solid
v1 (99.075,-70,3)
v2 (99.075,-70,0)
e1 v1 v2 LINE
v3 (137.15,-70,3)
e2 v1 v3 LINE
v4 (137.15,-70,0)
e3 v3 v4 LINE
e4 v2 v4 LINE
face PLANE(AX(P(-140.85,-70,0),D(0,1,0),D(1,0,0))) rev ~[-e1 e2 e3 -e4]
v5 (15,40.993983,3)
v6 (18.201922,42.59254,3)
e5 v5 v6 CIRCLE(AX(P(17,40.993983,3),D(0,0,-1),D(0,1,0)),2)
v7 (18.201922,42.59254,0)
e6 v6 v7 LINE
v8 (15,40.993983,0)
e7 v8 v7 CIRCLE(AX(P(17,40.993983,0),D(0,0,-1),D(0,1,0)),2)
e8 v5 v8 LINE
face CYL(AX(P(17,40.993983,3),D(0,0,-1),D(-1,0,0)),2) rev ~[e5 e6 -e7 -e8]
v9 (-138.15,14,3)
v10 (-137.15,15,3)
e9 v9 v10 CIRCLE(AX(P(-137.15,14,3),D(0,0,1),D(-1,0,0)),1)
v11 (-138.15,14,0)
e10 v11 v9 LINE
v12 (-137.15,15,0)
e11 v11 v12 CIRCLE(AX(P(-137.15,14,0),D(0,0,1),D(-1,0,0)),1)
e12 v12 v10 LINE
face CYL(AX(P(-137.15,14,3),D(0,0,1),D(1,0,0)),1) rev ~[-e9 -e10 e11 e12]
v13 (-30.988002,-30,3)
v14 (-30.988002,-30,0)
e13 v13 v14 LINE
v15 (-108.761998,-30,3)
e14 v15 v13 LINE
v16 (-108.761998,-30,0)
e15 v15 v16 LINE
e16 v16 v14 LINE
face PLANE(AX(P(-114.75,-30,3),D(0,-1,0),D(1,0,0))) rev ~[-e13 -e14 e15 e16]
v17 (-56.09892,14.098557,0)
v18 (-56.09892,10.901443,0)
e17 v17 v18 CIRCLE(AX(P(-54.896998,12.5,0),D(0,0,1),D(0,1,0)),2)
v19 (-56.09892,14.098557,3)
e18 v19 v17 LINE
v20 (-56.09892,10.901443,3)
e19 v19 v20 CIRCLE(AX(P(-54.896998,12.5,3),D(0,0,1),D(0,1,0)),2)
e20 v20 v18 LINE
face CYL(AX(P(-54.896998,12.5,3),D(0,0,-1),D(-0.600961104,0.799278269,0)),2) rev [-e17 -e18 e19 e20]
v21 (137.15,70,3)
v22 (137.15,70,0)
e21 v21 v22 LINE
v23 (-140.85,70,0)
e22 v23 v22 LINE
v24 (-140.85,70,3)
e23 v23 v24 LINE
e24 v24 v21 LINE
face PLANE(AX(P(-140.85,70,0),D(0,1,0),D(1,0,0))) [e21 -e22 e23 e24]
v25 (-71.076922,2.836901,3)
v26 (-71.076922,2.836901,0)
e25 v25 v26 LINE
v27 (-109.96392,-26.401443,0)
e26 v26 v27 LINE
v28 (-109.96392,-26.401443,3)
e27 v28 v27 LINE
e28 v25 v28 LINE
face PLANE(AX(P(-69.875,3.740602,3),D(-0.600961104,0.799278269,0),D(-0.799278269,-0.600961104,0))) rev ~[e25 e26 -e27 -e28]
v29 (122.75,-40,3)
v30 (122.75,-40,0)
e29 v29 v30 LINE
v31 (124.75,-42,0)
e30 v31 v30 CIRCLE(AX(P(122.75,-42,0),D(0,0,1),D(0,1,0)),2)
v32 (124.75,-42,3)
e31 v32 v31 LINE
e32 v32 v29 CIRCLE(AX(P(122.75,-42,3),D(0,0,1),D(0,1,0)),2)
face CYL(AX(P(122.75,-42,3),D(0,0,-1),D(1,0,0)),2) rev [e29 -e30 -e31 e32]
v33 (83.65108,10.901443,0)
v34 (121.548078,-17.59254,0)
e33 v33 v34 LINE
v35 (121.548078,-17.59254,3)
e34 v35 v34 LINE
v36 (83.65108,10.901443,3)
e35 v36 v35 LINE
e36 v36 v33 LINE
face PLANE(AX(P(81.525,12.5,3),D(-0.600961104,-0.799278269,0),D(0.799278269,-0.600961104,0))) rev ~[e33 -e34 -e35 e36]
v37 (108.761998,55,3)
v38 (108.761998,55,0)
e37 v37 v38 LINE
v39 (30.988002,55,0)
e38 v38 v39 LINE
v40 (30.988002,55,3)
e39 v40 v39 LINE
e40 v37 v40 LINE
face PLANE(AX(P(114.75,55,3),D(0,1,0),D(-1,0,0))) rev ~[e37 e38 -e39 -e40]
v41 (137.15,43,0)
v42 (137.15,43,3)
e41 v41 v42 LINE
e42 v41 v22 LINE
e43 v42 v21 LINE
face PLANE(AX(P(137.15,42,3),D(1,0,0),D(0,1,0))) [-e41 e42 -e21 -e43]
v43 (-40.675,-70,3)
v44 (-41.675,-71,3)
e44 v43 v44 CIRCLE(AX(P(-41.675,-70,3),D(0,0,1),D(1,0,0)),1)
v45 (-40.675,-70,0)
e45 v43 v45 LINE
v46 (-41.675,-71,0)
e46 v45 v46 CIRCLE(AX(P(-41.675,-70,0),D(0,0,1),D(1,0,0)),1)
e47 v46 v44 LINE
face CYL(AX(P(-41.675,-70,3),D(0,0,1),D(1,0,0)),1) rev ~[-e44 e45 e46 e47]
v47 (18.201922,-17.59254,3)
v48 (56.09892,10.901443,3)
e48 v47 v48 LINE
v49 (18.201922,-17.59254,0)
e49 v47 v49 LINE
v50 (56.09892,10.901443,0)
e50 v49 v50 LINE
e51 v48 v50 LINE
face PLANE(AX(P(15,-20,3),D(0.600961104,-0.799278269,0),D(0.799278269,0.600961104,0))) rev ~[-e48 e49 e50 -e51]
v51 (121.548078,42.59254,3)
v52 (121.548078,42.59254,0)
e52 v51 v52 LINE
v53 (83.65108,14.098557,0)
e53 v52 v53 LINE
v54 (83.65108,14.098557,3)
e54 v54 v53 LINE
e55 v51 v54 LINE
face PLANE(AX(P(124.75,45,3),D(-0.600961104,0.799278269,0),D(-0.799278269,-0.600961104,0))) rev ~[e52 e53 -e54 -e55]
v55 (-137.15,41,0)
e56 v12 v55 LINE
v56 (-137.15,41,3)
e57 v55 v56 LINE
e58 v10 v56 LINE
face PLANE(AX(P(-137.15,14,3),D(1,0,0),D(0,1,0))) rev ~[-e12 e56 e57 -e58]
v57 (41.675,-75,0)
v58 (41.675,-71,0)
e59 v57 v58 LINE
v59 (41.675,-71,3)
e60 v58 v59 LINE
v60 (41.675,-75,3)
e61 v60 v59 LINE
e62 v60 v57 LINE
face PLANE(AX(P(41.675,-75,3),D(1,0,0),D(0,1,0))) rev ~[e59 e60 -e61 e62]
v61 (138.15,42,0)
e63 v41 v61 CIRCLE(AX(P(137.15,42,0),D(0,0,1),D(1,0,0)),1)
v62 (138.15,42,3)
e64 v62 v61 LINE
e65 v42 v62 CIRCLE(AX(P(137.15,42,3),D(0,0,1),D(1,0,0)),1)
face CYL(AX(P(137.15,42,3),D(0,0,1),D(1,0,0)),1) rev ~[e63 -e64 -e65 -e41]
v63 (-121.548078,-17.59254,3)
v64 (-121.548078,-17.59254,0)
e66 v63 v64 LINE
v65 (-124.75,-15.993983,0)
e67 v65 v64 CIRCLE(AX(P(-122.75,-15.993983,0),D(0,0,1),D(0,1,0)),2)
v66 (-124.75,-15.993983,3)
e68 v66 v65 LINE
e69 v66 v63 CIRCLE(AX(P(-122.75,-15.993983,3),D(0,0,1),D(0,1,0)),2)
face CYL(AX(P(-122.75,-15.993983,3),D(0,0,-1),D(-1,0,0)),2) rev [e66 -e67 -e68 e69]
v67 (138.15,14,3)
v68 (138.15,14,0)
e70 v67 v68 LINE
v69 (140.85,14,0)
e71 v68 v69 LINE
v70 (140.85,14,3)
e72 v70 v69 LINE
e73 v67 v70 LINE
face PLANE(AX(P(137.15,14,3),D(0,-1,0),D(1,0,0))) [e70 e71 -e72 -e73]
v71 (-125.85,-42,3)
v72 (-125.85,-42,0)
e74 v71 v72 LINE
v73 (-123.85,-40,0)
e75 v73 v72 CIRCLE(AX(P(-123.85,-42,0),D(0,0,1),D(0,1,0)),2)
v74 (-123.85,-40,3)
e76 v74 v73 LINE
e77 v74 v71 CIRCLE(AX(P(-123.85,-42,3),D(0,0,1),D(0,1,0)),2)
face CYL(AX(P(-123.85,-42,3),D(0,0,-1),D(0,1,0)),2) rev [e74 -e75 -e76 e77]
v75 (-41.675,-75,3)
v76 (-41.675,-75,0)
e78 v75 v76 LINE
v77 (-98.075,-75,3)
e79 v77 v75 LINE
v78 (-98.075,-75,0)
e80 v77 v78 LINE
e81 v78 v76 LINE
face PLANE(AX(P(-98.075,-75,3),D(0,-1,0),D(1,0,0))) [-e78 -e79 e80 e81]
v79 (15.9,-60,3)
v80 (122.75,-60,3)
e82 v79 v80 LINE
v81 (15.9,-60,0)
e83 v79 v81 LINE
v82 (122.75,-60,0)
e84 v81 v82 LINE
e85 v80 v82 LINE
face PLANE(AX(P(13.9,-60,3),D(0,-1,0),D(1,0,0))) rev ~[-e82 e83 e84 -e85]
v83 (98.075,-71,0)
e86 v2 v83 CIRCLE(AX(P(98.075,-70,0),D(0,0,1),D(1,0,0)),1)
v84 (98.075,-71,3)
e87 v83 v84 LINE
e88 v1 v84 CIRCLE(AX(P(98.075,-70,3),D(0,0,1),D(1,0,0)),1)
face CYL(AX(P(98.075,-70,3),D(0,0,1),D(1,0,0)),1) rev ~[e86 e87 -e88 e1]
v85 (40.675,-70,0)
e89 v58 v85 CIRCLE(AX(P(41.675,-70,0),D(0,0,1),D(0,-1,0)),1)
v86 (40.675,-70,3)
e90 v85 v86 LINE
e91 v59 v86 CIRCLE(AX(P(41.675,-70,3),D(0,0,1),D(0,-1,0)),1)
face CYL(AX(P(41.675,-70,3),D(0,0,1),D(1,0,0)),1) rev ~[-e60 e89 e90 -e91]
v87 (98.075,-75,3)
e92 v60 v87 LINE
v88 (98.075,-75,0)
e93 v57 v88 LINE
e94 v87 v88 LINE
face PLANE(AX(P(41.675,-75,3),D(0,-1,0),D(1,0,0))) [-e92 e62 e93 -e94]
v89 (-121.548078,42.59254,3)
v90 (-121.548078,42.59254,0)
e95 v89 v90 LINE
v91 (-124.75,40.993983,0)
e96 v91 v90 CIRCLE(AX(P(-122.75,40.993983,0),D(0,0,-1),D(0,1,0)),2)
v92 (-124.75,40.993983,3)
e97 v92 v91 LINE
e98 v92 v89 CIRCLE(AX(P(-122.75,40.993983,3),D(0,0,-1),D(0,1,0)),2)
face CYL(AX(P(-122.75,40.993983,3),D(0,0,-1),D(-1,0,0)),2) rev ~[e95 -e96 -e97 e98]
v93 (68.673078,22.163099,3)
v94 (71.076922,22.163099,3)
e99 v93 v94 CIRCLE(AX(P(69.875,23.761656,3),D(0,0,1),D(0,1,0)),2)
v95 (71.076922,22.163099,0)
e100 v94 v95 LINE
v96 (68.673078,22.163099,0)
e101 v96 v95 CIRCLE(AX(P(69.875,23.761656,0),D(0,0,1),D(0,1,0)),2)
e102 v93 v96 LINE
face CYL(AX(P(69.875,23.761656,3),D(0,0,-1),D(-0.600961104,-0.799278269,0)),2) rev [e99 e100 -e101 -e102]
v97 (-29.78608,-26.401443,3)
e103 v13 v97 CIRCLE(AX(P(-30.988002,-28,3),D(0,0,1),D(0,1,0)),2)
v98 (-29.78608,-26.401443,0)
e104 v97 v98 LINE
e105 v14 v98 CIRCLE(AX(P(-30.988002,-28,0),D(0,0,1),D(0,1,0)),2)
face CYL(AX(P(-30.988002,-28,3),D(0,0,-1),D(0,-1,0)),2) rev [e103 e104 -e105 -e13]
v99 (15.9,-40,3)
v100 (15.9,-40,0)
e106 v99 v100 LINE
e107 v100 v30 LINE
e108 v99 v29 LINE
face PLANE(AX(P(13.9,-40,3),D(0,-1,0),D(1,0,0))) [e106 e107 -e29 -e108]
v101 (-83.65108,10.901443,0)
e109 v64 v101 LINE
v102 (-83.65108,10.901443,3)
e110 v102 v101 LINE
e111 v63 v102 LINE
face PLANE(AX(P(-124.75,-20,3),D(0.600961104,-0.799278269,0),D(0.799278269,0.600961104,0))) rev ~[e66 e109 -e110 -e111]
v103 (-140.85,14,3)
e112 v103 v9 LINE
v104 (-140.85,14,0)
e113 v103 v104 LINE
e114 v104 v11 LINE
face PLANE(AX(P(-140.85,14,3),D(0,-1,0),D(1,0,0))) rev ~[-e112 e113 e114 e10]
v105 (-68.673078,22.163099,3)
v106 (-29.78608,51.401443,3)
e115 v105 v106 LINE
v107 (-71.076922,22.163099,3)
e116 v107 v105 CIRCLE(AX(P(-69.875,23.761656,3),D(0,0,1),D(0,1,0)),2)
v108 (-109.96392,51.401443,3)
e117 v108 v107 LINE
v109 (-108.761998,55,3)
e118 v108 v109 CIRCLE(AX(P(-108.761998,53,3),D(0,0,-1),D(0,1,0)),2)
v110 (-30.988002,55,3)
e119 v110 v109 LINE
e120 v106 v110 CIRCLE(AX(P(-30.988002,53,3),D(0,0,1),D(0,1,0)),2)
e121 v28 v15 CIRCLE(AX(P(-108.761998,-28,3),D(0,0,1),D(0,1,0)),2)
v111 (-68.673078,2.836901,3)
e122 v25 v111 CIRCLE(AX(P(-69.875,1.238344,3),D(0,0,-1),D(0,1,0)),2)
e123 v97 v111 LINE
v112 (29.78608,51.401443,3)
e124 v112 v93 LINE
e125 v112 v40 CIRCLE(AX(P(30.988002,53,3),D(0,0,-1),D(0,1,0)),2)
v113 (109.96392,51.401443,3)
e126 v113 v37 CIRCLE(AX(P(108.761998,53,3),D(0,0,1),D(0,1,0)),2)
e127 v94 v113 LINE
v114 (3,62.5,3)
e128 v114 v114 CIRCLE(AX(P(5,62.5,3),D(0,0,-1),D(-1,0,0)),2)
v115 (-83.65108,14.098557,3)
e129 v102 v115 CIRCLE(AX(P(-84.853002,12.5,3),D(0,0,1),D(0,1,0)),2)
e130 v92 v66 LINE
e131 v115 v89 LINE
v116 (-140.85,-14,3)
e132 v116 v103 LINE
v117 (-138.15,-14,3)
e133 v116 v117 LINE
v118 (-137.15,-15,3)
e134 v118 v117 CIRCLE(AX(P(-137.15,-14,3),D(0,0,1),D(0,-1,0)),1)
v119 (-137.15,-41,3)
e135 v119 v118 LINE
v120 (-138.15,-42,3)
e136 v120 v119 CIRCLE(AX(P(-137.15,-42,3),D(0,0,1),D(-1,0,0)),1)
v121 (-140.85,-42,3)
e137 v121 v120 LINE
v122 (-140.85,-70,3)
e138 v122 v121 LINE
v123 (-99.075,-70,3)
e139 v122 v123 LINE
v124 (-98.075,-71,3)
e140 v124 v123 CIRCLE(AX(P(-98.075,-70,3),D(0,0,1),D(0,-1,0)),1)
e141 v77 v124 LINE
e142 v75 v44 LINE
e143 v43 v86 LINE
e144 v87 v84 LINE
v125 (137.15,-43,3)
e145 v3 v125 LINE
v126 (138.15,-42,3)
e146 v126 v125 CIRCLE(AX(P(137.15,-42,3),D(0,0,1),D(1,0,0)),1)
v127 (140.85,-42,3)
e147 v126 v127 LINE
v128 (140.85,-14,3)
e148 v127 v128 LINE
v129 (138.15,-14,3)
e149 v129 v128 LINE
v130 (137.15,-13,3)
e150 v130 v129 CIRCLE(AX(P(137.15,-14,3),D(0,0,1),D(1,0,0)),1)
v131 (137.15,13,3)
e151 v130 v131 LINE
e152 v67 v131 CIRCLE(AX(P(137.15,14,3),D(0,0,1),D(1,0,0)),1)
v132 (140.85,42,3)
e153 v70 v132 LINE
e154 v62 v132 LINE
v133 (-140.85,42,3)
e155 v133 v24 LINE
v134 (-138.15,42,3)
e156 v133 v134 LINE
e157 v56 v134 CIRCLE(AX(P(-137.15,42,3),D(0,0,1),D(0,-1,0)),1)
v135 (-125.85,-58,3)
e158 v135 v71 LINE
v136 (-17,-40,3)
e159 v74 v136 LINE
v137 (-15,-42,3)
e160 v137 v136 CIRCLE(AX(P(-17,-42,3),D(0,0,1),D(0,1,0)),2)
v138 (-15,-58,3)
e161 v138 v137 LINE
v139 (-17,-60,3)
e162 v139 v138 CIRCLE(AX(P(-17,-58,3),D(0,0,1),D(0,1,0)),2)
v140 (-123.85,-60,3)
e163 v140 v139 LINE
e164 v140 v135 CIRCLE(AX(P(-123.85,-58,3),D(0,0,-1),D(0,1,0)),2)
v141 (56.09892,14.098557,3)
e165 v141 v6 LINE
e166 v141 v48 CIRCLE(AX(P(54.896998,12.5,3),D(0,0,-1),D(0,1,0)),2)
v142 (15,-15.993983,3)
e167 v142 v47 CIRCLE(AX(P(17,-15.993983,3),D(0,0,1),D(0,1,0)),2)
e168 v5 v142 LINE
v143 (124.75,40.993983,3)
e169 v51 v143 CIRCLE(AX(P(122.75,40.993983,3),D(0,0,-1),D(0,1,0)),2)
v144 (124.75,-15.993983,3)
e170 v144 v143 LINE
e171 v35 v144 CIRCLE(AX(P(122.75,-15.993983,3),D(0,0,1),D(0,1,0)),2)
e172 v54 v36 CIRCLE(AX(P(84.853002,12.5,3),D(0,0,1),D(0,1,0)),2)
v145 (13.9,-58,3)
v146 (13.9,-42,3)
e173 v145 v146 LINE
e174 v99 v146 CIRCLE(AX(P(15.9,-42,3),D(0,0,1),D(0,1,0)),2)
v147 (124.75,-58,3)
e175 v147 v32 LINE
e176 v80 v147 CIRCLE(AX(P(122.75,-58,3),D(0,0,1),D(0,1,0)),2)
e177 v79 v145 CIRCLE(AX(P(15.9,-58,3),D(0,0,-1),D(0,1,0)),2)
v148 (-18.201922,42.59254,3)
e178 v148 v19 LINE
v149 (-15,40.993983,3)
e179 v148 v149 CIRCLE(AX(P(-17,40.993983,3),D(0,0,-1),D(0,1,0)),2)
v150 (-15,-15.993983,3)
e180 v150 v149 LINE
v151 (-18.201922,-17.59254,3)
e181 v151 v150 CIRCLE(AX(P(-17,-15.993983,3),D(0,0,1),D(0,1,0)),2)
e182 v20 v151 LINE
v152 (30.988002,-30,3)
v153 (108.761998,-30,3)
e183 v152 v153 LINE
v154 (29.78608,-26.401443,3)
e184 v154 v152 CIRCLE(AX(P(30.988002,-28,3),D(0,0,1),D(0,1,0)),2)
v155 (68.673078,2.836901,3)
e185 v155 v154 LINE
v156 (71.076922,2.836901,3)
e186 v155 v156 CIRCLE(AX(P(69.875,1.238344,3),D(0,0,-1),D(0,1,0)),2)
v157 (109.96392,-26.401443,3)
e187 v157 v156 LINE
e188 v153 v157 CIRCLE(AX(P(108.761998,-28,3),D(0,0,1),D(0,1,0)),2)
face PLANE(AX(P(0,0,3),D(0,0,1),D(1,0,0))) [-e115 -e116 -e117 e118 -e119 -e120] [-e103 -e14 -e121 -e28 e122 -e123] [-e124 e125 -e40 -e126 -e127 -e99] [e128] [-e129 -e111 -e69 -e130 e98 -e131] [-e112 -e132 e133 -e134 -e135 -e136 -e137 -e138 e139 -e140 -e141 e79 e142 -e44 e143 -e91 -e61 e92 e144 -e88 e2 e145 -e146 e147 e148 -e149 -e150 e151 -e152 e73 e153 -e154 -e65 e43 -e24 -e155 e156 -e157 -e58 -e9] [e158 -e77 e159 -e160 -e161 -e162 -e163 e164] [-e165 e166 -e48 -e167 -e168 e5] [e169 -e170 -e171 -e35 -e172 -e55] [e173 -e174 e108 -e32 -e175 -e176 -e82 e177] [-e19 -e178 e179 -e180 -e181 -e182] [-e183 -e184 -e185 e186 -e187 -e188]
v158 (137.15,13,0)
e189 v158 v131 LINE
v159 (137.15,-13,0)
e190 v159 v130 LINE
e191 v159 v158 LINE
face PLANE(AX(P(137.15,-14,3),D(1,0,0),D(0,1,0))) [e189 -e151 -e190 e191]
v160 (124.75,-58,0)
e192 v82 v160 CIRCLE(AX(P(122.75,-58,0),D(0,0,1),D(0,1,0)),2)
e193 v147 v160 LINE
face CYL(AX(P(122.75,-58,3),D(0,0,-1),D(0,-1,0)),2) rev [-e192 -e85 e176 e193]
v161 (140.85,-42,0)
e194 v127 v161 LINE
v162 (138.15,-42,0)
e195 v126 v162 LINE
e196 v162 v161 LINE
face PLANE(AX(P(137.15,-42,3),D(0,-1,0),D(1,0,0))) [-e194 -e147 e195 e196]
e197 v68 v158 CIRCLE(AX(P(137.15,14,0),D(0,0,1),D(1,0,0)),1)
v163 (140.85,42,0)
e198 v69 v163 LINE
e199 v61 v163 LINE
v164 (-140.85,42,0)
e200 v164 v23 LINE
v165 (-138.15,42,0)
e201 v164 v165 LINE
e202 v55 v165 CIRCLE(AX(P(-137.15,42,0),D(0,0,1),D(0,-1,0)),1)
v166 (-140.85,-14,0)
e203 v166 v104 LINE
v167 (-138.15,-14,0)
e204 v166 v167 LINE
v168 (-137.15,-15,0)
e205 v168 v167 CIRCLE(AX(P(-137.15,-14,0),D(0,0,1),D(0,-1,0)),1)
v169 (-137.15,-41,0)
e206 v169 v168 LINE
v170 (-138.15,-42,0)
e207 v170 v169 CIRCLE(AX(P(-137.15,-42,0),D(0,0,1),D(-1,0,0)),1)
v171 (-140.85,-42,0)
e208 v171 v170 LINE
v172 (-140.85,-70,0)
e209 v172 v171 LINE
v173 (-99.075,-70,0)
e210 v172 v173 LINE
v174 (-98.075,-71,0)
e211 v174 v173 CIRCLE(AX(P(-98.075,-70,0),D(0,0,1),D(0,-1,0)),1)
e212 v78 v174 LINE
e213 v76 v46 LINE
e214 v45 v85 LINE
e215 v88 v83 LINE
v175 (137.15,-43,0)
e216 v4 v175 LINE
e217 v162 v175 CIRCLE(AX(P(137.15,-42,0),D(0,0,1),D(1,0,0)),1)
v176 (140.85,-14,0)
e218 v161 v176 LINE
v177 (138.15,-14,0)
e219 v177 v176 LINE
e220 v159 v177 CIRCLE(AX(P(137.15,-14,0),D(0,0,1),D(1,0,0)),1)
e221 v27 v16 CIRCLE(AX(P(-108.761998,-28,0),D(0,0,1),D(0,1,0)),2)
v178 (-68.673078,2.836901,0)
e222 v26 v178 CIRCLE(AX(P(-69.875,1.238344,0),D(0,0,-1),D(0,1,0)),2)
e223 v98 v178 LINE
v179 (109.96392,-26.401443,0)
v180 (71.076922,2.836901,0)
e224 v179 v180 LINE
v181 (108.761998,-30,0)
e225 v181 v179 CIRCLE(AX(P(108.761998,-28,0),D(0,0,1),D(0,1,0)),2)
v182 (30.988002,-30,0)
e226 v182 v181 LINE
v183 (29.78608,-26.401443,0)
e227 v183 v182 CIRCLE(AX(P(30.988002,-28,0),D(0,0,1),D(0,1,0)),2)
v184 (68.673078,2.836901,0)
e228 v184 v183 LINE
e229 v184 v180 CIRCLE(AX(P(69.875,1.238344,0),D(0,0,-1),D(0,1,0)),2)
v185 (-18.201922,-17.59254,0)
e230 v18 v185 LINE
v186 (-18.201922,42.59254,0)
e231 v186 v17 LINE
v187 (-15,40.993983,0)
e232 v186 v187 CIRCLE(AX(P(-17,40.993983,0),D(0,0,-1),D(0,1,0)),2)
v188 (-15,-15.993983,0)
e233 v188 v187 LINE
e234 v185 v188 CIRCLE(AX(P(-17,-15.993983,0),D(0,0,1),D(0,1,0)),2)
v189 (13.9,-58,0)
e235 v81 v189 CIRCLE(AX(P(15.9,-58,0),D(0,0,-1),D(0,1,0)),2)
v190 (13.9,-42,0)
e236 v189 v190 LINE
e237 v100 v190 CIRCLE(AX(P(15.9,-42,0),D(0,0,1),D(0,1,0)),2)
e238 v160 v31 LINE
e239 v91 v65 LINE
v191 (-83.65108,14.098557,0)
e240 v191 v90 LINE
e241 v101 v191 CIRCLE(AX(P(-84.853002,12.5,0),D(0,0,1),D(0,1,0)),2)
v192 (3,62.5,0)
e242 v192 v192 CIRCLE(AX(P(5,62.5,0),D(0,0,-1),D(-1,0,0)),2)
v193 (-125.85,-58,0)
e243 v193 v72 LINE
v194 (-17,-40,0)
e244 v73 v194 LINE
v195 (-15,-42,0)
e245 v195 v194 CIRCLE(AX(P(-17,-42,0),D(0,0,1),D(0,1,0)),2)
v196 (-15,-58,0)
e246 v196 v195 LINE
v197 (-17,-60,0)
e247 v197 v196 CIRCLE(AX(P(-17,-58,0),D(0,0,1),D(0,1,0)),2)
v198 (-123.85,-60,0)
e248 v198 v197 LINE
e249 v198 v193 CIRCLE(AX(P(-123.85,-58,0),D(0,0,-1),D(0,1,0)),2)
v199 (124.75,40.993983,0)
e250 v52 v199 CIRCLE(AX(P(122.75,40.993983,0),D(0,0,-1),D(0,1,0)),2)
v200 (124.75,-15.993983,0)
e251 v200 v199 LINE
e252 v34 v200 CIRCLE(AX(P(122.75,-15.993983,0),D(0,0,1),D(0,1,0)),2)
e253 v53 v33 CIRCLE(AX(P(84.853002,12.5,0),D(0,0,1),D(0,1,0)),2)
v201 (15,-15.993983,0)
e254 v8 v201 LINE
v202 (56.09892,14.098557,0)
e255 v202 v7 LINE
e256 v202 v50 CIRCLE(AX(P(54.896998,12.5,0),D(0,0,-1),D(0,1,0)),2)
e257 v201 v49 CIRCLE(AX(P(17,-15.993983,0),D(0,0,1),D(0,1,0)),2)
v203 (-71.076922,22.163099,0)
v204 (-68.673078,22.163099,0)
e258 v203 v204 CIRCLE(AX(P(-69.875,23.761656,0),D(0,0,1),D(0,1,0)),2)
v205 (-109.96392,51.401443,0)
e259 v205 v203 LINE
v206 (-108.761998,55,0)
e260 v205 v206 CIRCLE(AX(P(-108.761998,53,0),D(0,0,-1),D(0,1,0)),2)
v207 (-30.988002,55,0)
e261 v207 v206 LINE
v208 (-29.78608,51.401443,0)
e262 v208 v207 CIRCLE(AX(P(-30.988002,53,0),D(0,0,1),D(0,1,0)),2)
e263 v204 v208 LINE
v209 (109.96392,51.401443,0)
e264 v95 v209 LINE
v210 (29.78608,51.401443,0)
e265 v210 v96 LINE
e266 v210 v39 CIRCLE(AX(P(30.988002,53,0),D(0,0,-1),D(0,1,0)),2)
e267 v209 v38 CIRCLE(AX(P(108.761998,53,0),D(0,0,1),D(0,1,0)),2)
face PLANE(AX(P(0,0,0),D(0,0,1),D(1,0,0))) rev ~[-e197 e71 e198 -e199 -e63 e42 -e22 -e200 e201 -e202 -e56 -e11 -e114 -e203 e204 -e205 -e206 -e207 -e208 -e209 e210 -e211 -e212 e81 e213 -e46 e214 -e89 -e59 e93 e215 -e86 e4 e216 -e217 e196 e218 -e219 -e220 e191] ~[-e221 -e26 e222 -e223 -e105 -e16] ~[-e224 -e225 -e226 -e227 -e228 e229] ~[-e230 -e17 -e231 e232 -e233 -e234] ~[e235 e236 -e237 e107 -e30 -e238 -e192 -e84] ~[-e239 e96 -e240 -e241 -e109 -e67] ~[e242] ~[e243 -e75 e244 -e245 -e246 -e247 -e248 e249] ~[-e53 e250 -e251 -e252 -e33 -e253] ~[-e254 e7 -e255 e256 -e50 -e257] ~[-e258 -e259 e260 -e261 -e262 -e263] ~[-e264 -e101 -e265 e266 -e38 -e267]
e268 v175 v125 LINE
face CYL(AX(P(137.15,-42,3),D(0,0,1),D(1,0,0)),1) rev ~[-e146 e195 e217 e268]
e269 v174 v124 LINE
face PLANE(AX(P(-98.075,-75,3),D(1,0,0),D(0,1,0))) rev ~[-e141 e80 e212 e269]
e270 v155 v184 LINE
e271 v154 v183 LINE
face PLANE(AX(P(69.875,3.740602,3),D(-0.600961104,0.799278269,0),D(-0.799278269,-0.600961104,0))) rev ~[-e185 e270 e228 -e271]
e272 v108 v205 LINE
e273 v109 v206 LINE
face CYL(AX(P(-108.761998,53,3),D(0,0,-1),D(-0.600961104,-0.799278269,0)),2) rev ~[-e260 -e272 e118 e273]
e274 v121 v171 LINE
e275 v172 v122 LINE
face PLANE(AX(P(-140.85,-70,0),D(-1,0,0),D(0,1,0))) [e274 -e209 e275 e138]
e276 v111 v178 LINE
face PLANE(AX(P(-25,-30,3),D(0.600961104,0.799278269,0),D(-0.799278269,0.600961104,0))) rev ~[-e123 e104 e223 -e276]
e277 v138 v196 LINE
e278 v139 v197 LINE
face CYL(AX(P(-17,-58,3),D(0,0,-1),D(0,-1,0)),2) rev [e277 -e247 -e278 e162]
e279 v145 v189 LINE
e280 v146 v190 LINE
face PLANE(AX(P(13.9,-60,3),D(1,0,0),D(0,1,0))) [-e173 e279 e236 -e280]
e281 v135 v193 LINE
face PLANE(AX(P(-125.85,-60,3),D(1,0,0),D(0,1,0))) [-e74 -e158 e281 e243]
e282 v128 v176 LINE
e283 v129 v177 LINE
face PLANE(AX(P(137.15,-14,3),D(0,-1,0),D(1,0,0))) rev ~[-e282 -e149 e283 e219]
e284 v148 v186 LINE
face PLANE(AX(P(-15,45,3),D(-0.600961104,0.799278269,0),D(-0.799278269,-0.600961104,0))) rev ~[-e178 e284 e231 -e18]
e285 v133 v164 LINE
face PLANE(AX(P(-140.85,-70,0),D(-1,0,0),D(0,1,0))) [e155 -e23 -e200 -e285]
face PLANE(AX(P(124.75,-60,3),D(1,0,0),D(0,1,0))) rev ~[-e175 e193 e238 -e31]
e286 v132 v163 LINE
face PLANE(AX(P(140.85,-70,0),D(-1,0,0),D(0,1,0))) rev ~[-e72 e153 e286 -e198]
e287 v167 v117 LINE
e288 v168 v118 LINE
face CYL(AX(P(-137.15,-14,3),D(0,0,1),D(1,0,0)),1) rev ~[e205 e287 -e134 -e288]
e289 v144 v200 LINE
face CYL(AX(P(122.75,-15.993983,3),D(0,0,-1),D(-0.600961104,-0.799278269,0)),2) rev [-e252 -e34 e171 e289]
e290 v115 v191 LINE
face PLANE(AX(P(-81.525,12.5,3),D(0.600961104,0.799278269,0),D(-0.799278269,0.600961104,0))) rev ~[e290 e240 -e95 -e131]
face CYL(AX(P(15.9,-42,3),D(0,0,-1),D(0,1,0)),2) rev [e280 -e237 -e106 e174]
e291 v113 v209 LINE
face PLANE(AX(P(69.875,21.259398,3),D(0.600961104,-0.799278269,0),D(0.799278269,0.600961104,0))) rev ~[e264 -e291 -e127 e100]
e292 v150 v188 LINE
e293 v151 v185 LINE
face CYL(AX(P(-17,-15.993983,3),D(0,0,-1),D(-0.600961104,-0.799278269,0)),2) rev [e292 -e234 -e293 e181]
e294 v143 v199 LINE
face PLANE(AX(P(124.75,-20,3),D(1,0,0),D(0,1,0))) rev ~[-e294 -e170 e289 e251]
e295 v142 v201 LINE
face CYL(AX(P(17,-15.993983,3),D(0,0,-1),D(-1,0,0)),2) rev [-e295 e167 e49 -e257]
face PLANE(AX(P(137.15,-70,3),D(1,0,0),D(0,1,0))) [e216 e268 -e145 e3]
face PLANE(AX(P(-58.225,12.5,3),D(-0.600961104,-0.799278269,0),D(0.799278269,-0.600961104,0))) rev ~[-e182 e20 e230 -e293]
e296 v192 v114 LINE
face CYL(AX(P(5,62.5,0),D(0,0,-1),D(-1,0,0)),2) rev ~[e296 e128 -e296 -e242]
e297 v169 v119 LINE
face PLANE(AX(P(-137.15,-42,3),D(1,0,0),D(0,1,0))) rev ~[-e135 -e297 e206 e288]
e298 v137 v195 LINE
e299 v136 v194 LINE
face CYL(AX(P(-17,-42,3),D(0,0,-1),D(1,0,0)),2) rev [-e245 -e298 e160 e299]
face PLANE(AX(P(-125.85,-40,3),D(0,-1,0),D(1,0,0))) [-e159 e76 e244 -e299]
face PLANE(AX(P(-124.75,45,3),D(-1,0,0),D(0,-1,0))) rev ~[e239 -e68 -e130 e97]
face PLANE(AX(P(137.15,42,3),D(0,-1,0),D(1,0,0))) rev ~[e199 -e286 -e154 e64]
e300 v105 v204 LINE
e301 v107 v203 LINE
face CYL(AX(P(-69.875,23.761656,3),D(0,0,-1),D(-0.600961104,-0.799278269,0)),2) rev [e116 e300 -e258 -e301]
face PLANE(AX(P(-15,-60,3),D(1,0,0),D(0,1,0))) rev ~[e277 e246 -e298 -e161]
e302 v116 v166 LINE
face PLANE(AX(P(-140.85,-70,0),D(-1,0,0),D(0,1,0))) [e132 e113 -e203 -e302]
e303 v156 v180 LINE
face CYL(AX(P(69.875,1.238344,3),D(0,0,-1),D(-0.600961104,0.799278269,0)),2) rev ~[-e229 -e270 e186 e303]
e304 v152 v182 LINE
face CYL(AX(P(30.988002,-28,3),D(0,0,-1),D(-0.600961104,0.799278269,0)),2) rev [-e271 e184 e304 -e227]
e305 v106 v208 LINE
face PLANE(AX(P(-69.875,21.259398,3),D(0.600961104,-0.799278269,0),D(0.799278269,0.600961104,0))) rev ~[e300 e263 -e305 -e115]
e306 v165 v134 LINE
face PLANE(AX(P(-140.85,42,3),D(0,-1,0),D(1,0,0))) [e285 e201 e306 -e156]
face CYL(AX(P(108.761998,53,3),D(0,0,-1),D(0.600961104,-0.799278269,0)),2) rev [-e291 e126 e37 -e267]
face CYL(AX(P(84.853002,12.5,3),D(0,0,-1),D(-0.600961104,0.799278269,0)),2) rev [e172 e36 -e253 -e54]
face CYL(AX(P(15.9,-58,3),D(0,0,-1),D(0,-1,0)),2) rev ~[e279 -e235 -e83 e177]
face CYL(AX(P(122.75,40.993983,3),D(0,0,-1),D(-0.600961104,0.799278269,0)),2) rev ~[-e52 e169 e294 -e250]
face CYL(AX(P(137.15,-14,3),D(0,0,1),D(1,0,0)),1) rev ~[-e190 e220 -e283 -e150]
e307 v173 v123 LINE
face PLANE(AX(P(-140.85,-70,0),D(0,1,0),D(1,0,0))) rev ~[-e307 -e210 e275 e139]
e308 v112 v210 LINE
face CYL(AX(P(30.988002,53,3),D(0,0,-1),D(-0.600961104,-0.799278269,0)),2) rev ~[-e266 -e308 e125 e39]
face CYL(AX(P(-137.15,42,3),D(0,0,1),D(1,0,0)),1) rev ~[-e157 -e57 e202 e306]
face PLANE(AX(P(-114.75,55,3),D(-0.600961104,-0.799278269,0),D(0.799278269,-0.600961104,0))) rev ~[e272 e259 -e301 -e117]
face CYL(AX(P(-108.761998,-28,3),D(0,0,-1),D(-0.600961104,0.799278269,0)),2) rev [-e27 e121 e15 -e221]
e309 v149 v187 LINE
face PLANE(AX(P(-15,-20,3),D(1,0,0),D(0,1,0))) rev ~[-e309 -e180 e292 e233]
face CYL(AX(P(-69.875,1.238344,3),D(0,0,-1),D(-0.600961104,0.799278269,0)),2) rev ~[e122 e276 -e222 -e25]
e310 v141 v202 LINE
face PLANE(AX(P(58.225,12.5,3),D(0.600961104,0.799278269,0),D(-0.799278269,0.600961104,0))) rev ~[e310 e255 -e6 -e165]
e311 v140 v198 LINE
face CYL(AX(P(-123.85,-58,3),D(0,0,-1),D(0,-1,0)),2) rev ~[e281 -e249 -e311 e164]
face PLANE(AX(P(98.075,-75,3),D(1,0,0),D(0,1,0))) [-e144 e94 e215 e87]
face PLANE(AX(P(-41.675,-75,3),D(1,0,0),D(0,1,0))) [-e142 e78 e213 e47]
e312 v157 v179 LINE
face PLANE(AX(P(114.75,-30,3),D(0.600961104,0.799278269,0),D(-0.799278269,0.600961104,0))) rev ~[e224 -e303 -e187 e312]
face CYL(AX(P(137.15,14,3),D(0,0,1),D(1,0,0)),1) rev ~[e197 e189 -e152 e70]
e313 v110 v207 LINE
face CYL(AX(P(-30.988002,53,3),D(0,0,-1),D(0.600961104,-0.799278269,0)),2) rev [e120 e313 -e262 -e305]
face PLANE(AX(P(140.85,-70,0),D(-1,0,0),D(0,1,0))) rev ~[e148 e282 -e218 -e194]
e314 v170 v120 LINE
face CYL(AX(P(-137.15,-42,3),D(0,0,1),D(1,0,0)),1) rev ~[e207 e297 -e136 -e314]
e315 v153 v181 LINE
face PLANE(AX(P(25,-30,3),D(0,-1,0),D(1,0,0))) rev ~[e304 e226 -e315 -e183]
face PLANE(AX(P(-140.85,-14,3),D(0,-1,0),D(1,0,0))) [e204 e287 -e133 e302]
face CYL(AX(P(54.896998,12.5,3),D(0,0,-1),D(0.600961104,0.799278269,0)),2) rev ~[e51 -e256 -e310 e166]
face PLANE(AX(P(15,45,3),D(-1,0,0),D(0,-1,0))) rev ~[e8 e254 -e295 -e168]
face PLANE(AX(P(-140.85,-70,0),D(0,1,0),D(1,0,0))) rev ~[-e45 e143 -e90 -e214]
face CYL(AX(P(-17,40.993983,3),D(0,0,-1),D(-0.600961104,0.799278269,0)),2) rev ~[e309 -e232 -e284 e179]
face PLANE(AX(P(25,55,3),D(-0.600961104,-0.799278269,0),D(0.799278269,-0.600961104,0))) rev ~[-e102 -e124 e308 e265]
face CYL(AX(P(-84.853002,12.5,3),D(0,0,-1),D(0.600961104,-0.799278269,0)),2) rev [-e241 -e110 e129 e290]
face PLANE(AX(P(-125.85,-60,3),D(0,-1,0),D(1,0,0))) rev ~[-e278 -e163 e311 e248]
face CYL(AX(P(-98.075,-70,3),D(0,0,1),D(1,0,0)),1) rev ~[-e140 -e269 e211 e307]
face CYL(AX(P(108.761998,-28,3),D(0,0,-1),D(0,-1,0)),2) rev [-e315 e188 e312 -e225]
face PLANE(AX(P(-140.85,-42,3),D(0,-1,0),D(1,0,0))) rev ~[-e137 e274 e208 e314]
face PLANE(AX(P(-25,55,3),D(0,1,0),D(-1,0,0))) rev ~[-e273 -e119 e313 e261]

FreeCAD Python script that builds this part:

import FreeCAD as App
import Part
import Sketcher

V = App.Vector


def edges_at(feature, points):
    """Names of the edges that pass closest to the given points."""
    edges = feature.Shape.Edges
    near = lambda p: min(range(len(edges)), key=lambda i: edges[i].distToShape(Part.Vertex(*p))[0])
    return sorted({f"Edge{near(p) + 1}" for p in points})

doc = App.newDocument("Part")
body = doc.addObject("PartDesign::Body", "Body")

# Sketch on XY plane
sketch1 = body.newObject("Sketcher::SketchObject", "Sketch")
sketch1.AttachmentSupport = (doc.getObject("XY_Plane"), [""])
sketch1.MapMode = "FlatFace"
sketch1.addGeometry(Part.LineSegment(V(-141, 70, 0), V(-141, -70, 0)), False)
sketch1.addGeometry(Part.LineSegment(V(-141, -70, 0), V(141, -70, 0)), False)
sketch1.addGeometry(Part.LineSegment(V(141, -70, 0), V(141, 70, 0)), False)
sketch1.addGeometry(Part.LineSegment(V(141, 70, 0), V(-141, 70, 0)), False)
sketch1.addConstraint(Sketcher.Constraint("Coincident", 0, 2, 1, 1))
sketch1.addConstraint(Sketcher.Constraint("Coincident", 1, 2, 2, 1))
sketch1.addConstraint(Sketcher.Constraint("Coincident", 2, 2, 3, 1))
sketch1.addConstraint(Sketcher.Constraint("Coincident", 3, 2, 0, 1))
sketch1.addConstraint(Sketcher.Constraint("Vertical", 0))
sketch1.addConstraint(Sketcher.Constraint("Horizontal", 1))
sketch1.addConstraint(Sketcher.Constraint("Vertical", 2))
sketch1.addConstraint(Sketcher.Constraint("Horizontal", 3))
sketch1.addConstraint(Sketcher.Constraint("Symmetric", 0, 2, 2, 2, -1, 1))
sketch1.addConstraint(Sketcher.Constraint("DistanceY", 0, 2, 0, 1, 140.0))
sketch1.addConstraint(Sketcher.Constraint("DistanceX", 1, 1, 1, 2, 281.7))
pad1 = body.newObject("PartDesign::Pad", "Pad")
pad1.Profile = sketch1
pad1.Length = 3

# Sketch on XY plane
sketch2 = body.newObject("Sketcher::SketchObject", "Sketch001")
sketch2.AttachmentSupport = (doc.getObject("XY_Plane"), [""])
sketch2.MapMode = "FlatFace"
sketch2.AttachmentOffset = App.Placement(V(0, 0, 3), App.Rotation())
sketch2.addGeometry(Part.LineSegment(V(-125, 45, 0), V(-125, -20, 0)), False)
sketch2.addGeometry(Part.LineSegment(V(-125, -20, 0), V(-82, 12, 0)), False)
sketch2.addGeometry(Part.LineSegment(V(-82, 12, 0), V(-125, 45, 0)), False)
sketch2.addGeometry(Part.LineSegment(V(-115, 55, 0), V(-70, 21, 0)), False)
sketch2.addGeometry(Part.LineSegment(V(-70, 21, 0), V(-25, 55, 0)), False)
sketch2.addGeometry(Part.LineSegment(V(-25, 55, 0), V(-115, 55, 0)), False)
sketch2.addGeometry(Part.LineSegment(V(-15, 45, 0), V(-58, 12, 0)), False)
sketch2.addGeometry(Part.LineSegment(V(-58, 12, 0), V(-15, -20, 0)), False)
sketch2.addGeometry(Part.LineSegment(V(-15, -20, 0), V(-15, 45, 0)), False)
sketch2.addGeometry(Part.LineSegment(V(-70, 4, 0), V(-115, -30, 0)), False)
sketch2.addGeometry(Part.LineSegment(V(-115, -30, 0), V(-25, -30, 0)), False)
sketch2.addGeometry(Part.LineSegment(V(-25, -30, 0), V(-70, 4, 0)), False)
sketch2.addGeometry(Part.LineSegment(V(-126, -40, 0), V(-126, -60, 0)), False)
sketch2.addGeometry(Part.LineSegment(V(-126, -60, 0), V(-15, -60, 0)), False)
sketch2.addGeometry(Part.LineSegment(V(-15, -60, 0), V(-15, -40, 0)), False)
sketch2.addGeometry(Part.LineSegment(V(-15, -40, 0), V(-126, -40, 0)), False)
sketch2.addGeometry(Part.LineSegment(V(14, -40, 0), V(14, -60, 0)), False)
sketch2.addGeometry(Part.LineSegment(V(14, -60, 0), V(125, -60, 0)), False)
sketch2.addGeometry(Part.LineSegment(V(125, -60, 0), V(125, -40, 0)), False)
sketch2.addGeometry(Part.LineSegment(V(125, -40, 0), V(14, -40, 0)), False)
sketch2.addGeometry(Part.LineSegment(V(70, 4, 0), V(25, -30, 0)), False)
sketch2.addGeometry(Part.LineSegment(V(25, -30, 0), V(115, -30, 0)), False)
sketch2.addGeometry(Part.LineSegment(V(115, -30, 0), V(70, 4, 0)), False)
sketch2.addGeometry(Part.LineSegment(V(15, 45, 0), V(15, -20, 0)), False)
sketch2.addGeometry(Part.LineSegment(V(15, -20, 0), V(58, 12, 0)), False)
sketch2.addGeometry(Part.LineSegment(V(58, 12, 0), V(15, 45, 0)), False)
sketch2.addGeometry(Part.LineSegment(V(25, 55, 0), V(70, 21, 0)), False)
sketch2.addGeometry(Part.LineSegment(V(70, 21, 0), V(115, 55, 0)), False)
sketch2.addGeometry(Part.LineSegment(V(115, 55, 0), V(25, 55, 0)), False)
sketch2.addGeometry(Part.LineSegment(V(125, 45, 0), V(82, 12, 0)), False)
sketch2.addGeometry(Part.LineSegment(V(82, 12, 0), V(125, -20, 0)), False)
sketch2.addGeometry(Part.LineSegment(V(125, -20, 0), V(125, 45, 0)), False)
sketch2.addConstraint(Sketcher.Constraint("Coincident", 0, 2, 1, 1))
sketch2.addConstraint(Sketcher.Constraint("Coincident", 1, 2, 2, 1))
sketch2.addConstraint(Sketcher.Constraint("Coincident", 2, 2, 0, 1))
sketch2.addConstraint(Sketcher.Constraint("Coincident", 3, 2, 4, 1))
sketch2.addConstraint(Sketcher.Constraint("Coincident", 4, 2, 5, 1))
sketch2.addConstraint(Sketcher.Constraint("Coincident", 5, 2, 3, 1))
sketch2.addConstraint(Sketcher.Constraint("Coincident", 6, 2, 7, 1))
sketch2.addConstraint(Sketcher.Constraint("Coincident", 7, 2, 8, 1))
sketch2.addConstraint(Sketcher.Constraint("Coincident", 8, 2, 6, 1))
sketch2.addConstraint(Sketcher.Constraint("Coincident", 9, 2, 10, 1))
sketch2.addConstraint(Sketcher.Constraint("Coincident", 10, 2, 11, 1))
sketch2.addConstraint(Sketcher.Constraint("Coincident", 11, 2, 9, 1))
sketch2.addConstraint(Sketcher.Constraint("Coincident", 12, 2, 13, 1))
sketch2.addConstraint(Sketcher.Constraint("Coincident", 13, 2, 14, 1))
sketch2.addConstraint(Sketcher.Constraint("Coincident", 14, 2, 15, 1))
sketch2.addConstraint(Sketcher.Constraint("Coincident", 15, 2, 12, 1))
sketch2.addConstraint(Sketcher.Constraint("Coincident", 16, 2, 17, 1))
sketch2.addConstraint(Sketcher.Constraint("Coincident", 17, 2, 18, 1))
sketch2.addConstraint(Sketcher.Constraint("Coincident", 18, 2, 19, 1))
sketch2.addConstraint(Sketcher.Constraint("Coincident", 19, 2, 16, 1))
sketch2.addConstraint(Sketcher.Constraint("Coincident", 20, 2, 21, 1))
sketch2.addConstraint(Sketcher.Constraint("Coincident", 21, 2, 22, 1))
sketch2.addConstraint(Sketcher.Constraint("Coincident", 22, 2, 20, 1))
sketch2.addConstraint(Sketcher.Constraint("Coincident", 23, 2, 24, 1))
sketch2.addConstraint(Sketcher.Constraint("Coincident", 24, 2, 25, 1))
sketch2.addConstraint(Sketcher.Constraint("Coincident", 25, 2, 23, 1))
sketch2.addConstraint(Sketcher.Constraint("Coincident", 26, 2, 27, 1))
sketch2.addConstraint(Sketcher.Constraint("Coincident", 27, 2, 28, 1))
sketch2.addConstraint(Sketcher.Constraint("Coincident", 28, 2, 26, 1))
sketch2.addConstraint(Sketcher.Constraint("Coincident", 29, 2, 30, 1))
sketch2.addConstraint(Sketcher.Constraint("Coincident", 30, 2, 31, 1))
sketch2.addConstraint(Sketcher.Constraint("Coincident", 31, 2, 29, 1))
sketch2.addConstraint(Sketcher.Constraint("Vertical", 0))
sketch2.addConstraint(Sketcher.Constraint("Horizontal", 5))
sketch2.addConstraint(Sketcher.Constraint("Vertical", 8))
sketch2.addConstraint(Sketcher.Constraint("Horizontal", 10))
sketch2.addConstraint(Sketcher.Constraint("Vertical", 12))
sketch2.addConstraint(Sketcher.Constraint("Horizontal", 13))
sketch2.addConstraint(Sketcher.Constraint("Vertical", 14))
sketch2.addConstraint(Sketcher.Constraint("Horizontal", 15))
sketch2.addConstraint(Sketcher.Constraint("Vertical", 16))
sketch2.addConstraint(Sketcher.Constraint("Horizontal", 17))
sketch2.addConstraint(Sketcher.Constraint("Vertical", 18))
sketch2.addConstraint(Sketcher.Constraint("Horizontal", 19))
sketch2.addConstraint(Sketcher.Constraint("Horizontal", 21))
sketch2.addConstraint(Sketcher.Constraint("Vertical", 23))
sketch2.addConstraint(Sketcher.Constraint("Horizontal", 28))
sketch2.addConstraint(Sketcher.Constraint("Vertical", 31))
sketch2.addConstraint(Sketcher.Constraint("Symmetric", 10, 2, 20, 2, -2))
sketch2.addConstraint(Sketcher.Constraint("Symmetric", 11, 2, 22, 2, -2))
sketch2.addConstraint(Sketcher.Constraint("Symmetric", 7, 2, 23, 2, -2))
sketch2.addConstraint(Sketcher.Constraint("Symmetric", 6, 2, 24, 2, -2))
sketch2.addConstraint(Sketcher.Constraint("Symmetric", 3, 2, 26, 2, -2))
sketch2.addConstraint(Sketcher.Constraint("Symmetric", 5, 2, 27, 2, -2))
sketch2.addConstraint(Sketcher.Constraint("Symmetric", 1, 2, 29, 2, -2))
sketch2.addConstraint(Sketcher.Constraint("Symmetric", 0, 2, 30, 2, -2))
sketch2.addConstraint(Sketcher.Constraint("Parallel", 2, 3))
sketch2.addConstraint(Sketcher.Constraint("Parallel", 1, 4))
sketch2.addConstraint(Sketcher.Constraint("Parallel", 4, 6))
sketch2.addConstraint(Sketcher.Constraint("Parallel", 3, 7))
sketch2.addConstraint(Sketcher.Constraint("Parallel", 6, 9))
sketch2.addConstraint(Sketcher.Constraint("Parallel", 7, 11))
sketch2.addConstraint(Sketcher.Constraint("Parallel", 9, 20))
sketch2.addConstraint(Sketcher.Constraint("Parallel", 11, 22))
sketch2.addConstraint(Sketcher.Constraint("Parallel", 22, 25))
sketch2.addConstraint(Sketcher.Constraint("Parallel", 25, 26))
sketch2.addConstraint(Sketcher.Constraint("Parallel", 27, 29))
sketch2.addConstraint(Sketcher.Constraint("Horizontal", 1, 2, 6, 2))
sketch2.addConstraint(Sketcher.Constraint("Horizontal", 0, 2, 7, 2))
sketch2.addConstraint(Sketcher.Constraint("Horizontal", 13, 2, 16, 2))
sketch2.addConstraint(Sketcher.Constraint("Horizontal", 15, 2, 18, 2))
sketch2.addConstraint(Sketcher.Constraint("Vertical", 5, 2, 9, 2))
sketch2.addConstraint(Sketcher.Constraint("Vertical", 4, 2, 10, 2))
sketch2.addConstraint(Sketcher.Constraint("Vertical", 8, 2, 13, 2))
sketch2.addConstraint(Sketcher.Constraint("Vertical", 18, 2, 30, 2))
sketch2.addConstraint(Sketcher.Constraint("Equal", 15, 17))
sketch2.addConstraint(Sketcher.Constraint("DistanceY", 0, 2, 0, 1, 65.0))
sketch2.addConstraint(Sketcher.Constraint("DistanceY", 12, 2, 12, 1, 20.0))
sketch2.addConstraint(Sketcher.Constraint("DistanceY", 0, 2, -1, 1, 20.0))
sketch2.addConstraint(Sketcher.Constraint("DistanceX", 4, 2, -1, 1, 25.0))
sketch2.addConstraint(Sketcher.Constraint("DistanceY", -1, 1, 4, 2, 55.0))
sketch2.addConstraint(Sketcher.Constraint("DistanceX", 7, 2, -1, 1, 15.0))
sketch2.addConstraint(Sketcher.Constraint("DistanceY", 9, 2, -1, 1, 30.0))
sketch2.addConstraint(Sketcher.Constraint("DistanceY", 12, 2, -1, 1, 60.0))
sketch2.addConstraint(Sketcher.Constraint("DistanceX", 2, 2, 5, 2, 10.0))
sketch2.addConstraint(Sketcher.Constraint("DistanceX", 5, 2, 5, 1, 89.75))
sketch2.addConstraint(Sketcher.Constraint("DistanceX", 13, 1, 13, 2, 110.85))
sketch2.addConstraint(Sketcher.Constraint("DistanceX", 1, 2, 6, 2, 23.3))
pocket1 = body.newObject("PartDesign::Pocket", "Pocket")
pocket1.Profile = sketch2
pocket1.Type = "ThroughAll"
doc.recompute()

fillet = body.newObject("PartDesign::Fillet", "Fillet")
fillet.Base = (pocket1, edges_at(pocket1, [
    (114.75, 55, 1.5),
    (25, 55, 1.5),
    (124.75, 45, 1.5),
    (124.75, -20, 1.5),
    (81.525, 12.5, 1.5),
    (-81.525, 12.5, 1.5),
    (-124.75, -20, 1.5),
    (-124.75, 45, 1.5),
    (-25, 55, 1.5),
    (-69.875, 21.259, 1.5),
    (-114.75, 55, 1.5),
    (-15, 45, 1.5),
    (-15, -20, 1.5),
    (-58.225, 12.5, 1.5),
    (-69.875, 3.741, 1.5),
    (-25, -30, 1.5),
    (-114.75, -30, 1.5),
    (-15, -60, 1.5),
    (-125.85, -60, 1.5),
    (-125.85, -40, 1.5),
    (-15, -40, 1.5),
    (124.75, -60, 1.5),
    (13.9, -60, 1.5),
    (13.9, -40, 1.5),
    (124.75, -40, 1.5),
    (69.875, 3.741, 1.5),
    (114.75, -30, 1.5),
    (25, -30, 1.5),
    (15, -20, 1.5),
    (15, 45, 1.5),
]))
fillet.Radius = 2

# Sketch on XY plane
sketch3 = body.newObject("Sketcher::SketchObject", "Sketch002")
sketch3.AttachmentSupport = (doc.getObject("XY_Plane"), [""])
sketch3.MapMode = "FlatFace"
sketch3.AttachmentOffset = App.Placement(V(0, 0, 3), App.Rotation())
sketch3.addGeometry(Part.LineSegment(V(137.2, 70, 0), V(137.2, 42, 0)), False)
sketch3.addGeometry(Part.LineSegment(V(137.2, 42, 0), V(140.8, 42, 0)), False)
sketch3.addGeometry(Part.LineSegment(V(140.8, 42, 0), V(140.8, 70, 0)), False)
sketch3.addGeometry(Part.LineSegment(V(140.8, 70, 0), V(137.2, 70, 0)), False)
sketch3.addGeometry(Part.LineSegment(V(137.2, -42, 0), V(137.2, -70, 0)), False)
sketch3.addGeometry(Part.LineSegment(V(137.2, -70, 0), V(140.8, -70, 0)), False)
sketch3.addGeometry(Part.LineSegment(V(140.8, -70, 0), V(140.8, -42, 0)), False)
sketch3.addGeometry(Part.LineSegment(V(140.8, -42, 0), V(137.2, -42, 0)), False)
sketch3.addGeometry(Part.LineSegment(V(137.2, 14, 0), V(137.2, -14, 0)), False)
sketch3.addGeometry(Part.LineSegment(V(137.2, -14, 0), V(140.8, -14, 0)), False)
sketch3.addGeometry(Part.LineSegment(V(140.8, -14, 0), V(140.8, 14, 0)), False)
sketch3.addGeometry(Part.LineSegment(V(140.8, 14, 0), V(137.2, 14, 0)), False)
sketch3.addGeometry(Part.LineSegment(V(-140.8, -14, 0), V(-140.8, -42, 0)), False)
sketch3.addGeometry(Part.LineSegment(V(-140.8, -42, 0), V(-137.2, -42, 0)), False)
sketch3.addGeometry(Part.LineSegment(V(-137.2, -42, 0), V(-137.2, -14, 0)), False)
sketch3.addGeometry(Part.LineSegment(V(-137.2, -14, 0), V(-140.8, -14, 0)), False)
sketch3.addGeometry(Part.LineSegment(V(-140.8, 42, 0), V(-140.8, 14, 0)), False)
sketch3.addGeometry(Part.LineSegment(V(-140.8, 14, 0), V(-137.2, 14, 0)), False)
sketch3.addGeometry(Part.LineSegment(V(-137.2, 14, 0), V(-137.2, 42, 0)), False)
sketch3.addGeometry(Part.LineSegment(V(-137.2, 42, 0), V(-140.8, 42, 0)), False)
sketch3.addConstraint(Sketcher.Constraint("Coincident", 0, 2, 1, 1))
sketch3.addConstraint(Sketcher.Constraint("Coincident", 1, 2, 2, 1))
sketch3.addConstraint(Sketcher.Constraint("Coincident", 2, 2, 3, 1))
sketch3.addConstraint(Sketcher.Constraint("Coincident", 3, 2, 0, 1))
sketch3.addConstraint(Sketcher.Constraint("Coincident", 4, 2, 5, 1))
sketch3.addConstraint(Sketcher.Constraint("Coincident", 5, 2, 6, 1))
sketch3.addConstraint(Sketcher.Constraint("Coincident", 6, 2, 7, 1))
sketch3.addConstraint(Sketcher.Constraint("Coincident", 7, 2, 4, 1))
sketch3.addConstraint(Sketcher.Constraint("Coincident", 8, 2, 9, 1))
sketch3.addConstraint(Sketcher.Constraint("Coincident", 9, 2, 10, 1))
sketch3.addConstraint(Sketcher.Constraint("Coincident", 10, 2, 11, 1))
sketch3.addConstraint(Sketcher.Constraint("Coincident", 11, 2, 8, 1))
sketch3.addConstraint(Sketcher.Constraint("Coincident", 12, 2, 13, 1))
sketch3.addConstraint(Sketcher.Constraint("Coincident", 13, 2, 14, 1))
sketch3.addConstraint(Sketcher.Constraint("Coincident", 14, 2, 15, 1))
sketch3.addConstraint(Sketcher.Constraint("Coincident", 15, 2, 12, 1))
sketch3.addConstraint(Sketcher.Constraint("Coincident", 16, 2, 17, 1))
sketch3.addConstraint(Sketcher.Constraint("Coincident", 17, 2, 18, 1))
sketch3.addConstraint(Sketcher.Constraint("Coincident", 18, 2, 19, 1))
sketch3.addConstraint(Sketcher.Constraint("Coincident", 19, 2, 16, 1))
sketch3.addConstraint(Sketcher.Constraint("Vertical", 0))
sketch3.addConstraint(Sketcher.Constraint("Horizontal", 1))
sketch3.addConstraint(Sketcher.Constraint("Vertical", 2))
sketch3.addConstraint(Sketcher.Constraint("Horizontal", 3))
sketch3.addConstraint(Sketcher.Constraint("Vertical", 4))
sketch3.addConstraint(Sketcher.Constraint("Horizontal", 5))
sketch3.addConstraint(Sketcher.Constraint("Vertical", 6))
sketch3.addConstraint(Sketcher.Constraint("Horizontal", 7))
sketch3.addConstraint(Sketcher.Constraint("Vertical", 8))
sketch3.addConstraint(Sketcher.Constraint("Horizontal", 9))
sketch3.addConstraint(Sketcher.Constraint("Vertical", 10))
sketch3.addConstraint(Sketcher.Constraint("Horizontal", 11))
sketch3.addConstraint(Sketcher.Constraint("Vertical", 12))
sketch3.addConstraint(Sketcher.Constraint("Horizontal", 13))
sketch3.addConstraint(Sketcher.Constraint("Vertical", 14))
sketch3.addConstraint(Sketcher.Constraint("Horizontal", 15))
sketch3.addConstraint(Sketcher.Constraint("Vertical", 16))
sketch3.addConstraint(Sketcher.Constraint("Horizontal", 17))
sketch3.addConstraint(Sketcher.Constraint("Vertical", 18))
sketch3.addConstraint(Sketcher.Constraint("Horizontal", 19))
sketch3.addConstraint(Sketcher.Constraint("Symmetric", 1, 2, 12, 2, -1, 1))
sketch3.addConstraint(Sketcher.Constraint("Symmetric", 11, 2, 14, 2, -1, 1))
sketch3.addConstraint(Sketcher.Constraint("Symmetric", 9, 2, 16, 2, -1, 1))
sketch3.addConstraint(Sketcher.Constraint("Symmetric", 7, 2, 18, 2, -1, 1))
sketch3.addConstraint(Sketcher.Constraint("Symmetric", 6, 2, 12, 2, -2))
sketch3.addConstraint(Sketcher.Constraint("Symmetric", 9, 2, 15, 2, -2))
sketch3.addConstraint(Sketcher.Constraint("Symmetric", 3, 2, 4, 2, -1))
sketch3.addConstraint(Sketcher.Constraint("Vertical", 7, 2, 8, 2))
sketch3.addConstraint(Sketcher.Constraint("Equal", 6, 8))
sketch3.addConstraint(Sketcher.Constraint("Equal", 10, 12))
sketch3.addConstraint(Sketcher.Constraint("DistanceY", 0, 2, 0, 1, 28.0))
sketch3.addConstraint(Sketcher.Constraint("DistanceX", 1, 1, 1, 2, 3.7))
sketch3.addConstraint(Sketcher.Constraint("DistanceX", 12, 2, 7, 2, 278.0))
pocket2 = body.newObject("PartDesign::Pocket", "Pocket001")
pocket2.Profile = sketch3
pocket2.Type = "ThroughAll"

# Sketch on XY plane
sketch4 = body.newObject("Sketcher::SketchObject", "Sketch003")
sketch4.AttachmentSupport = (doc.getObject("XY_Plane"), [""])
sketch4.MapMode = "FlatFace"
sketch4.AttachmentOffset = App.Placement(V(0, 0, 3), App.Rotation())
sketch4.addGeometry(Part.LineSegment(V(-98, -70, 0), V(-98, -75, 0)), False)
sketch4.addGeometry(Part.LineSegment(V(-98, -75, 0), V(-42, -75, 0)), False)
sketch4.addGeometry(Part.LineSegment(V(-42, -75, 0), V(-42, -70, 0)), False)
sketch4.addGeometry(Part.LineSegment(V(-42, -70, 0), V(-98, -70, 0)), False)
sketch4.addGeometry(Part.LineSegment(V(42, -70, 0), V(42, -75, 0)), False)
sketch4.addGeometry(Part.LineSegment(V(42, -75, 0), V(98, -75, 0)), False)
sketch4.addGeometry(Part.LineSegment(V(98, -75, 0), V(98, -70, 0)), False)
sketch4.addGeometry(Part.LineSegment(V(98, -70, 0), V(42, -70, 0)), False)
sketch4.addConstraint(Sketcher.Constraint("Coincident", 0, 2, 1, 1))
sketch4.addConstraint(Sketcher.Constraint("Coincident", 1, 2, 2, 1))
sketch4.addConstraint(Sketcher.Constraint("Coincident", 2, 2, 3, 1))
sketch4.addConstraint(Sketcher.Constraint("Coincident", 3, 2, 0, 1))
sketch4.addConstraint(Sketcher.Constraint("Coincident", 4, 2, 5, 1))
sketch4.addConstraint(Sketcher.Constraint("Coincident", 5, 2, 6, 1))
sketch4.addConstraint(Sketcher.Constraint("Coincident", 6, 2, 7, 1))
sketch4.addConstraint(Sketcher.Constraint("Coincident", 7, 2, 4, 1))
sketch4.addConstraint(Sketcher.Constraint("Vertical", 0))
sketch4.addConstraint(Sketcher.Constraint("Horizontal", 1))
sketch4.addConstraint(Sketcher.Constraint("Vertical", 2))
sketch4.addConstraint(Sketcher.Constraint("Horizontal", 3))
sketch4.addConstraint(Sketcher.Constraint("Vertical", 4))
sketch4.addConstraint(Sketcher.Constraint("Horizontal", 5))
sketch4.addConstraint(Sketcher.Constraint("Vertical", 6))
sketch4.addConstraint(Sketcher.Constraint("Horizontal", 7))
sketch4.addConstraint(Sketcher.Constraint("Symmetric", 1, 2, 4, 2, -2))
sketch4.addConstraint(Sketcher.Constraint("Symmetric", 3, 2, 6, 2, -2))
sketch4.addConstraint(Sketcher.Constraint("DistanceY", 0, 2, 0, 1, 5.0))
sketch4.addConstraint(Sketcher.Constraint("DistanceX", 1, 1, 1, 2, 56.4))
sketch4.addConstraint(Sketcher.Constraint("DistanceY", 0, 2, -1, 1, 75.0))
sketch4.addConstraint(Sketcher.Constraint("DistanceX", 1, 2, 4, 2, 83.35))
pad2 = body.newObject("PartDesign::Pad", "Pad001")
pad2.Profile = sketch4
pad2.Length = 3
pad2.Reversed = True
doc.recompute()

fillet2 = body.newObject("PartDesign::Fillet", "Fillet001")
fillet2.Base = (pad2, edges_at(pad2, [(69.875, 21.259, 1.5), (58.225, 12.5, 1.5)]))
fillet2.Radius = 2

# Sketch on XY plane
sketch5 = body.newObject("Sketcher::SketchObject", "Sketch004")
sketch5.AttachmentSupport = (doc.getObject("XY_Plane"), [""])
sketch5.MapMode = "FlatFace"
sketch5.addGeometry(Part.Circle(V(5, 62.5, 0), V(0, 0, 1), 2), False)
sketch5.addConstraint(Sketcher.Constraint("Diameter", 0, 4.0))
sketch5.addConstraint(Sketcher.Constraint("DistanceX", -1, 1, 0, 3, 5.0))
sketch5.addConstraint(Sketcher.Constraint("DistanceY", -1, 1, 0, 3, 62.5))
pocket3 = body.newObject("PartDesign::Pocket", "Pocket002")
pocket3.Profile = sketch5
pocket3.Type = "ThroughAll"
pocket3.Reversed = True

# Sketch on XY plane
sketch6 = body.newObject("Sketcher::SketchObject", "Sketch005")
sketch6.AttachmentSupport = (doc.getObject("XY_Plane"), [""])
sketch6.MapMode = "FlatFace"
sketch6.AttachmentOffset = App.Placement(V(0, 0, 3), App.Rotation())
sketch6.addGeometry(Part.Circle(V(-137.2, 42, 0), V(0, 0, 1), 1), False)
sketch6.addGeometry(Part.Circle(V(-137.2, 14, 0), V(0, 0, 1), 1), False)
sketch6.addGeometry(Part.Circle(V(-137.2, -14, 0), V(0, 0, 1), 1), False)
sketch6.addGeometry(Part.Circle(V(-137.2, -42, 0), V(0, 0, 1), 1), False)
sketch6.addGeometry(Part.Circle(V(-98.1, -70, 0), V(0, 0, 1), 1), False)
sketch6.addGeometry(Part.Circle(V(-41.7, -70, 0), V(0, 0, 1), 1), False)
sketch6.addGeometry(Part.Circle(V(41.7, -70, 0), V(0, 0, 1), 1), False)
sketch6.addGeometry(Part.Circle(V(98.1, -70, 0), V(0, 0, 1), 1), False)
sketch6.addGeometry(Part.Circle(V(137.2, -42, 0), V(0, 0, 1), 1), False)
sketch6.addGeometry(Part.Circle(V(137.2, -14, 0), V(0, 0, 1), 1), False)
sketch6.addGeometry(Part.Circle(V(137.2, 14, 0), V(0, 0, 1), 1), False)
sketch6.addGeometry(Part.Circle(V(137.2, 42, 0), V(0, 0, 1), 1), False)
sketch6.addConstraint(Sketcher.Constraint("Equal", 0, 1))
sketch6.addConstraint(Sketcher.Constraint("Equal", 1, 2))
sketch6.addConstraint(Sketcher.Constraint("Equal", 2, 3))
sketch6.addConstraint(Sketcher.Constraint("Equal", 3, 4))
sketch6.addConstraint(Sketcher.Constraint("Equal", 4, 5))
sketch6.addConstraint(Sketcher.Constraint("Equal", 5, 6))
sketch6.addConstraint(Sketcher.Constraint("Equal", 6, 7))
sketch6.addConstraint(Sketcher.Constraint("Equal", 7, 8))
sketch6.addConstraint(Sketcher.Constraint("Equal", 8, 9))
sketch6.addConstraint(Sketcher.Constraint("Equal", 9, 10))
sketch6.addConstraint(Sketcher.Constraint("Equal", 10, 11))
sketch6.addConstraint(Sketcher.Constraint("Symmetric", 0, 3, 8, 3, -1, 1))
sketch6.addConstraint(Sketcher.Constraint("Symmetric", 1, 3, 9, 3, -1, 1))
sketch6.addConstraint(Sketcher.Constraint("Symmetric", 2, 3, 10, 3, -1, 1))
sketch6.addConstraint(Sketcher.Constraint("Symmetric", 3, 3, 11, 3, -1, 1))
sketch6.addConstraint(Sketcher.Constraint("Symmetric", 5, 3, 6, 3, -2))
sketch6.addConstraint(Sketcher.Constraint("Symmetric", 4, 3, 7, 3, -2))
sketch6.addConstraint(Sketcher.Constraint("Symmetric", 3, 3, 8, 3, -2))
sketch6.addConstraint(Sketcher.Constraint("Symmetric", 2, 3, 9, 3, -2))
sketch6.addConstraint(Sketcher.Constraint("Horizontal", 4, 3, 5, 3))
sketch6.addConstraint(Sketcher.Constraint("Vertical", 0, 3, 1, 3))
sketch6.addConstraint(Sketcher.Constraint("Diameter", 0, 2.0))
sketch6.addConstraint(Sketcher.Constraint("DistanceY", -1, 1, 0, 3, 42.0))
sketch6.addConstraint(Sketcher.Constraint("DistanceY", -1, 1, 1, 3, 14.0))
sketch6.addConstraint(Sketcher.Constraint("DistanceY", 4, 3, -1, 1, 70.0))
sketch6.addConstraint(Sketcher.Constraint("DistanceX", 4, 3, 5, 3, 56.4))
sketch6.addConstraint(Sketcher.Constraint("DistanceX", 3, 3, 8, 3, 274.3))
sketch6.addConstraint(Sketcher.Constraint("DistanceX", 5, 3, 6, 3, 83.35))
pocket4 = body.newObject("PartDesign::Pocket", "Pocket003")
pocket4.Profile = sketch6
pocket4.Type = "ThroughAll"

doc.recompute()
